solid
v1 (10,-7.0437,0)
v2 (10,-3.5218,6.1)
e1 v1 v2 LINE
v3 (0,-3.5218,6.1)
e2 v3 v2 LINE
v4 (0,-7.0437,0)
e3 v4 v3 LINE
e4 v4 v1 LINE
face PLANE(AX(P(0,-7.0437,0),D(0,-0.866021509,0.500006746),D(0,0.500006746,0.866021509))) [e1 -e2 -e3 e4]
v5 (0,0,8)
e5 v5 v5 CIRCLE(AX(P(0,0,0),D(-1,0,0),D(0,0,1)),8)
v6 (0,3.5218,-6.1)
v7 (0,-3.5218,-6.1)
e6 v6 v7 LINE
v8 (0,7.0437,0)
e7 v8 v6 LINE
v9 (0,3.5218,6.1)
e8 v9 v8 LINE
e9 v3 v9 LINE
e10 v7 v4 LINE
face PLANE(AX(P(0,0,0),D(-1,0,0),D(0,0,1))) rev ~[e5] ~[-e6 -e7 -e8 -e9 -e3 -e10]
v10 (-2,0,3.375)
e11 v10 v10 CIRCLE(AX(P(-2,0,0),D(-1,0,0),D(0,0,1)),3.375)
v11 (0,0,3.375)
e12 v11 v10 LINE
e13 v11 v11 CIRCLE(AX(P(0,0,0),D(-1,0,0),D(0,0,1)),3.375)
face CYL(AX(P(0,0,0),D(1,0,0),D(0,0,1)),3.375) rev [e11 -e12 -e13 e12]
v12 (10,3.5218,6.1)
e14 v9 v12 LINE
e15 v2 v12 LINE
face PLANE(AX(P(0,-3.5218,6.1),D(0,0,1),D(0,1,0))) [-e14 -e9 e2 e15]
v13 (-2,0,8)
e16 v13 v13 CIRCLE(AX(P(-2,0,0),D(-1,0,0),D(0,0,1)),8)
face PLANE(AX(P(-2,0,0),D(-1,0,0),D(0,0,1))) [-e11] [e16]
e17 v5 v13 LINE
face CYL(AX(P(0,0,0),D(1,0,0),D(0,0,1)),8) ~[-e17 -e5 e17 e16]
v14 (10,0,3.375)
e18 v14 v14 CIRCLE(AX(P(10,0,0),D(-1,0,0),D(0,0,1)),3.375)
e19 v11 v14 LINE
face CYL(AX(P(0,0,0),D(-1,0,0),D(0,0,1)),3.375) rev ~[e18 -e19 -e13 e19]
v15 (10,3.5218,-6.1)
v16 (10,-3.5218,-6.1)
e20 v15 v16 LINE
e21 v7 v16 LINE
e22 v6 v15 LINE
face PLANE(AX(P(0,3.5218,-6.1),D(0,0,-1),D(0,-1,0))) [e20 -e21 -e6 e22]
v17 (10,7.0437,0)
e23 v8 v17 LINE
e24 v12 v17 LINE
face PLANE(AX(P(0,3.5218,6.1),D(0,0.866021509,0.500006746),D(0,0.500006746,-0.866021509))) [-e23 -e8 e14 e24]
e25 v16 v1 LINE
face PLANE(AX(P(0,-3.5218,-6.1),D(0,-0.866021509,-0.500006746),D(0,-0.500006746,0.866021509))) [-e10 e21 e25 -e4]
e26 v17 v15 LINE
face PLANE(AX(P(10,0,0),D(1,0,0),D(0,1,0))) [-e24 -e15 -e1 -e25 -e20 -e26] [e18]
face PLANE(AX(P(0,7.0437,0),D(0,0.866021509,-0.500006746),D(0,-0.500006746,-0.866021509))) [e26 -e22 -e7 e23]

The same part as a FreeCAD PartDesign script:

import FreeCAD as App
import Part
import Sketcher

V = App.Vector
Q = App.Units.Quantity


def add_polygon(sketch, points):
    """Adds a closed chain of lines whose ends are joined by coincident constraints."""
    first, n = sketch.GeometryCount, len(points)
    for a, b in zip(points, points[1:] + points[:1]):
        sketch.addGeometry(Part.LineSegment(App.Vector(*a, 0), App.Vector(*b, 0)), False)
    for i in range(n):
        sketch.addConstraint(Sketcher.Constraint("Coincident", first + i, 2, first + (i + 1) % n, 1))

doc = App.newDocument("Part")
body = doc.addObject("PartDesign::Body", "Body")

# Sketch on YZ plane
sketch1 = doc.addObject("Sketcher::SketchObject", "Sketch")
body.addObject(sketch1)
sketch1.AttachmentSupport = (doc.YZ_Plane, [""])
sketch1.MapMode = "FlatFace"
add_polygon(sketch1, [(7, 0), (4, 6), (-4, 6), (-7, 0), (-4, -6), (4, -6)])  # lines 0-5
sketch1.addConstraint([
    Sketcher.Constraint("Horizontal", 1),
    Sketcher.Constraint("Horizontal", 4),
    Sketcher.Constraint("Symmetric", 0, 2, 3, 2, -1, 1),
    Sketcher.Constraint("Symmetric", 2, 2, 5, 2, -1, 1),
    Sketcher.Constraint("PointOnObject", 2, 2, -1),
    Sketcher.Constraint("Parallel", 2, 5),
    Sketcher.Constraint("Vertical", 1, 2, 3, 2),
    Sketcher.Constraint("DistanceY", -1, 1, 0, 2, 6.1),
    Sketcher.Constraint("Angle", 0, Q("120.0004 deg")),
    Sketcher.Constraint("DistanceX", 1, 2, 1, 1, 7.0436),
])
pad1 = doc.addObject("PartDesign::Pad", "Pad")
body.addObject(pad1)
pad1.Profile = sketch1
pad1.Length = 10

# Sketch on YZ plane
sketch2 = doc.addObject("Sketcher::SketchObject", "Sketch001")
body.addObject(sketch2)
sketch2.AttachmentSupport = (doc.YZ_Plane, [""])
sketch2.MapMode = "FlatFace"
sketch2.addGeometry([
    Part.Circle(V(0, 0, 0), V(0, 0, 1), 8),
    Part.Circle(V(0, 0, 0), V(0, 0, 1), 3.4),
], False)
sketch2.addConstraint([
    Sketcher.Constraint("Coincident", 0, 3, -1, 1),
    Sketcher.Constraint("Coincident", 1, 3, -1, 1),
    Sketcher.Constraint("Diameter", 0, 16.0),
    Sketcher.Constraint("Diameter", 1, 6.75),
])
pad2 = doc.addObject("PartDesign::Pad", "Pad001")
body.addObject(pad2)
pad2.Profile = sketch2
pad2.Length = 2
pad2.Reversed = True

# Sketch on YZ plane
sketch3 = doc.addObject("Sketcher::SketchObject", "Sketch002")
body.addObject(sketch3)
sketch3.AttachmentSupport = (doc.YZ_Plane, [""])
sketch3.MapMode = "FlatFace"
sketch3.addGeometry(Part.Circle(V(0, 0, 0), V(0, 0, 1), 3.4), False)
sketch3.addConstraint([
    Sketcher.Constraint("Coincident", 0, 3, -1, 1),
    Sketcher.Constraint("Diameter", 0, 6.75),
])
pocket1 = doc.addObject("PartDesign::Pocket", "Pocket")
body.addObject(pocket1)
pocket1.Profile = sketch3
pocket1.Length = 10
pocket1.Reversed = True

doc.recompute()
